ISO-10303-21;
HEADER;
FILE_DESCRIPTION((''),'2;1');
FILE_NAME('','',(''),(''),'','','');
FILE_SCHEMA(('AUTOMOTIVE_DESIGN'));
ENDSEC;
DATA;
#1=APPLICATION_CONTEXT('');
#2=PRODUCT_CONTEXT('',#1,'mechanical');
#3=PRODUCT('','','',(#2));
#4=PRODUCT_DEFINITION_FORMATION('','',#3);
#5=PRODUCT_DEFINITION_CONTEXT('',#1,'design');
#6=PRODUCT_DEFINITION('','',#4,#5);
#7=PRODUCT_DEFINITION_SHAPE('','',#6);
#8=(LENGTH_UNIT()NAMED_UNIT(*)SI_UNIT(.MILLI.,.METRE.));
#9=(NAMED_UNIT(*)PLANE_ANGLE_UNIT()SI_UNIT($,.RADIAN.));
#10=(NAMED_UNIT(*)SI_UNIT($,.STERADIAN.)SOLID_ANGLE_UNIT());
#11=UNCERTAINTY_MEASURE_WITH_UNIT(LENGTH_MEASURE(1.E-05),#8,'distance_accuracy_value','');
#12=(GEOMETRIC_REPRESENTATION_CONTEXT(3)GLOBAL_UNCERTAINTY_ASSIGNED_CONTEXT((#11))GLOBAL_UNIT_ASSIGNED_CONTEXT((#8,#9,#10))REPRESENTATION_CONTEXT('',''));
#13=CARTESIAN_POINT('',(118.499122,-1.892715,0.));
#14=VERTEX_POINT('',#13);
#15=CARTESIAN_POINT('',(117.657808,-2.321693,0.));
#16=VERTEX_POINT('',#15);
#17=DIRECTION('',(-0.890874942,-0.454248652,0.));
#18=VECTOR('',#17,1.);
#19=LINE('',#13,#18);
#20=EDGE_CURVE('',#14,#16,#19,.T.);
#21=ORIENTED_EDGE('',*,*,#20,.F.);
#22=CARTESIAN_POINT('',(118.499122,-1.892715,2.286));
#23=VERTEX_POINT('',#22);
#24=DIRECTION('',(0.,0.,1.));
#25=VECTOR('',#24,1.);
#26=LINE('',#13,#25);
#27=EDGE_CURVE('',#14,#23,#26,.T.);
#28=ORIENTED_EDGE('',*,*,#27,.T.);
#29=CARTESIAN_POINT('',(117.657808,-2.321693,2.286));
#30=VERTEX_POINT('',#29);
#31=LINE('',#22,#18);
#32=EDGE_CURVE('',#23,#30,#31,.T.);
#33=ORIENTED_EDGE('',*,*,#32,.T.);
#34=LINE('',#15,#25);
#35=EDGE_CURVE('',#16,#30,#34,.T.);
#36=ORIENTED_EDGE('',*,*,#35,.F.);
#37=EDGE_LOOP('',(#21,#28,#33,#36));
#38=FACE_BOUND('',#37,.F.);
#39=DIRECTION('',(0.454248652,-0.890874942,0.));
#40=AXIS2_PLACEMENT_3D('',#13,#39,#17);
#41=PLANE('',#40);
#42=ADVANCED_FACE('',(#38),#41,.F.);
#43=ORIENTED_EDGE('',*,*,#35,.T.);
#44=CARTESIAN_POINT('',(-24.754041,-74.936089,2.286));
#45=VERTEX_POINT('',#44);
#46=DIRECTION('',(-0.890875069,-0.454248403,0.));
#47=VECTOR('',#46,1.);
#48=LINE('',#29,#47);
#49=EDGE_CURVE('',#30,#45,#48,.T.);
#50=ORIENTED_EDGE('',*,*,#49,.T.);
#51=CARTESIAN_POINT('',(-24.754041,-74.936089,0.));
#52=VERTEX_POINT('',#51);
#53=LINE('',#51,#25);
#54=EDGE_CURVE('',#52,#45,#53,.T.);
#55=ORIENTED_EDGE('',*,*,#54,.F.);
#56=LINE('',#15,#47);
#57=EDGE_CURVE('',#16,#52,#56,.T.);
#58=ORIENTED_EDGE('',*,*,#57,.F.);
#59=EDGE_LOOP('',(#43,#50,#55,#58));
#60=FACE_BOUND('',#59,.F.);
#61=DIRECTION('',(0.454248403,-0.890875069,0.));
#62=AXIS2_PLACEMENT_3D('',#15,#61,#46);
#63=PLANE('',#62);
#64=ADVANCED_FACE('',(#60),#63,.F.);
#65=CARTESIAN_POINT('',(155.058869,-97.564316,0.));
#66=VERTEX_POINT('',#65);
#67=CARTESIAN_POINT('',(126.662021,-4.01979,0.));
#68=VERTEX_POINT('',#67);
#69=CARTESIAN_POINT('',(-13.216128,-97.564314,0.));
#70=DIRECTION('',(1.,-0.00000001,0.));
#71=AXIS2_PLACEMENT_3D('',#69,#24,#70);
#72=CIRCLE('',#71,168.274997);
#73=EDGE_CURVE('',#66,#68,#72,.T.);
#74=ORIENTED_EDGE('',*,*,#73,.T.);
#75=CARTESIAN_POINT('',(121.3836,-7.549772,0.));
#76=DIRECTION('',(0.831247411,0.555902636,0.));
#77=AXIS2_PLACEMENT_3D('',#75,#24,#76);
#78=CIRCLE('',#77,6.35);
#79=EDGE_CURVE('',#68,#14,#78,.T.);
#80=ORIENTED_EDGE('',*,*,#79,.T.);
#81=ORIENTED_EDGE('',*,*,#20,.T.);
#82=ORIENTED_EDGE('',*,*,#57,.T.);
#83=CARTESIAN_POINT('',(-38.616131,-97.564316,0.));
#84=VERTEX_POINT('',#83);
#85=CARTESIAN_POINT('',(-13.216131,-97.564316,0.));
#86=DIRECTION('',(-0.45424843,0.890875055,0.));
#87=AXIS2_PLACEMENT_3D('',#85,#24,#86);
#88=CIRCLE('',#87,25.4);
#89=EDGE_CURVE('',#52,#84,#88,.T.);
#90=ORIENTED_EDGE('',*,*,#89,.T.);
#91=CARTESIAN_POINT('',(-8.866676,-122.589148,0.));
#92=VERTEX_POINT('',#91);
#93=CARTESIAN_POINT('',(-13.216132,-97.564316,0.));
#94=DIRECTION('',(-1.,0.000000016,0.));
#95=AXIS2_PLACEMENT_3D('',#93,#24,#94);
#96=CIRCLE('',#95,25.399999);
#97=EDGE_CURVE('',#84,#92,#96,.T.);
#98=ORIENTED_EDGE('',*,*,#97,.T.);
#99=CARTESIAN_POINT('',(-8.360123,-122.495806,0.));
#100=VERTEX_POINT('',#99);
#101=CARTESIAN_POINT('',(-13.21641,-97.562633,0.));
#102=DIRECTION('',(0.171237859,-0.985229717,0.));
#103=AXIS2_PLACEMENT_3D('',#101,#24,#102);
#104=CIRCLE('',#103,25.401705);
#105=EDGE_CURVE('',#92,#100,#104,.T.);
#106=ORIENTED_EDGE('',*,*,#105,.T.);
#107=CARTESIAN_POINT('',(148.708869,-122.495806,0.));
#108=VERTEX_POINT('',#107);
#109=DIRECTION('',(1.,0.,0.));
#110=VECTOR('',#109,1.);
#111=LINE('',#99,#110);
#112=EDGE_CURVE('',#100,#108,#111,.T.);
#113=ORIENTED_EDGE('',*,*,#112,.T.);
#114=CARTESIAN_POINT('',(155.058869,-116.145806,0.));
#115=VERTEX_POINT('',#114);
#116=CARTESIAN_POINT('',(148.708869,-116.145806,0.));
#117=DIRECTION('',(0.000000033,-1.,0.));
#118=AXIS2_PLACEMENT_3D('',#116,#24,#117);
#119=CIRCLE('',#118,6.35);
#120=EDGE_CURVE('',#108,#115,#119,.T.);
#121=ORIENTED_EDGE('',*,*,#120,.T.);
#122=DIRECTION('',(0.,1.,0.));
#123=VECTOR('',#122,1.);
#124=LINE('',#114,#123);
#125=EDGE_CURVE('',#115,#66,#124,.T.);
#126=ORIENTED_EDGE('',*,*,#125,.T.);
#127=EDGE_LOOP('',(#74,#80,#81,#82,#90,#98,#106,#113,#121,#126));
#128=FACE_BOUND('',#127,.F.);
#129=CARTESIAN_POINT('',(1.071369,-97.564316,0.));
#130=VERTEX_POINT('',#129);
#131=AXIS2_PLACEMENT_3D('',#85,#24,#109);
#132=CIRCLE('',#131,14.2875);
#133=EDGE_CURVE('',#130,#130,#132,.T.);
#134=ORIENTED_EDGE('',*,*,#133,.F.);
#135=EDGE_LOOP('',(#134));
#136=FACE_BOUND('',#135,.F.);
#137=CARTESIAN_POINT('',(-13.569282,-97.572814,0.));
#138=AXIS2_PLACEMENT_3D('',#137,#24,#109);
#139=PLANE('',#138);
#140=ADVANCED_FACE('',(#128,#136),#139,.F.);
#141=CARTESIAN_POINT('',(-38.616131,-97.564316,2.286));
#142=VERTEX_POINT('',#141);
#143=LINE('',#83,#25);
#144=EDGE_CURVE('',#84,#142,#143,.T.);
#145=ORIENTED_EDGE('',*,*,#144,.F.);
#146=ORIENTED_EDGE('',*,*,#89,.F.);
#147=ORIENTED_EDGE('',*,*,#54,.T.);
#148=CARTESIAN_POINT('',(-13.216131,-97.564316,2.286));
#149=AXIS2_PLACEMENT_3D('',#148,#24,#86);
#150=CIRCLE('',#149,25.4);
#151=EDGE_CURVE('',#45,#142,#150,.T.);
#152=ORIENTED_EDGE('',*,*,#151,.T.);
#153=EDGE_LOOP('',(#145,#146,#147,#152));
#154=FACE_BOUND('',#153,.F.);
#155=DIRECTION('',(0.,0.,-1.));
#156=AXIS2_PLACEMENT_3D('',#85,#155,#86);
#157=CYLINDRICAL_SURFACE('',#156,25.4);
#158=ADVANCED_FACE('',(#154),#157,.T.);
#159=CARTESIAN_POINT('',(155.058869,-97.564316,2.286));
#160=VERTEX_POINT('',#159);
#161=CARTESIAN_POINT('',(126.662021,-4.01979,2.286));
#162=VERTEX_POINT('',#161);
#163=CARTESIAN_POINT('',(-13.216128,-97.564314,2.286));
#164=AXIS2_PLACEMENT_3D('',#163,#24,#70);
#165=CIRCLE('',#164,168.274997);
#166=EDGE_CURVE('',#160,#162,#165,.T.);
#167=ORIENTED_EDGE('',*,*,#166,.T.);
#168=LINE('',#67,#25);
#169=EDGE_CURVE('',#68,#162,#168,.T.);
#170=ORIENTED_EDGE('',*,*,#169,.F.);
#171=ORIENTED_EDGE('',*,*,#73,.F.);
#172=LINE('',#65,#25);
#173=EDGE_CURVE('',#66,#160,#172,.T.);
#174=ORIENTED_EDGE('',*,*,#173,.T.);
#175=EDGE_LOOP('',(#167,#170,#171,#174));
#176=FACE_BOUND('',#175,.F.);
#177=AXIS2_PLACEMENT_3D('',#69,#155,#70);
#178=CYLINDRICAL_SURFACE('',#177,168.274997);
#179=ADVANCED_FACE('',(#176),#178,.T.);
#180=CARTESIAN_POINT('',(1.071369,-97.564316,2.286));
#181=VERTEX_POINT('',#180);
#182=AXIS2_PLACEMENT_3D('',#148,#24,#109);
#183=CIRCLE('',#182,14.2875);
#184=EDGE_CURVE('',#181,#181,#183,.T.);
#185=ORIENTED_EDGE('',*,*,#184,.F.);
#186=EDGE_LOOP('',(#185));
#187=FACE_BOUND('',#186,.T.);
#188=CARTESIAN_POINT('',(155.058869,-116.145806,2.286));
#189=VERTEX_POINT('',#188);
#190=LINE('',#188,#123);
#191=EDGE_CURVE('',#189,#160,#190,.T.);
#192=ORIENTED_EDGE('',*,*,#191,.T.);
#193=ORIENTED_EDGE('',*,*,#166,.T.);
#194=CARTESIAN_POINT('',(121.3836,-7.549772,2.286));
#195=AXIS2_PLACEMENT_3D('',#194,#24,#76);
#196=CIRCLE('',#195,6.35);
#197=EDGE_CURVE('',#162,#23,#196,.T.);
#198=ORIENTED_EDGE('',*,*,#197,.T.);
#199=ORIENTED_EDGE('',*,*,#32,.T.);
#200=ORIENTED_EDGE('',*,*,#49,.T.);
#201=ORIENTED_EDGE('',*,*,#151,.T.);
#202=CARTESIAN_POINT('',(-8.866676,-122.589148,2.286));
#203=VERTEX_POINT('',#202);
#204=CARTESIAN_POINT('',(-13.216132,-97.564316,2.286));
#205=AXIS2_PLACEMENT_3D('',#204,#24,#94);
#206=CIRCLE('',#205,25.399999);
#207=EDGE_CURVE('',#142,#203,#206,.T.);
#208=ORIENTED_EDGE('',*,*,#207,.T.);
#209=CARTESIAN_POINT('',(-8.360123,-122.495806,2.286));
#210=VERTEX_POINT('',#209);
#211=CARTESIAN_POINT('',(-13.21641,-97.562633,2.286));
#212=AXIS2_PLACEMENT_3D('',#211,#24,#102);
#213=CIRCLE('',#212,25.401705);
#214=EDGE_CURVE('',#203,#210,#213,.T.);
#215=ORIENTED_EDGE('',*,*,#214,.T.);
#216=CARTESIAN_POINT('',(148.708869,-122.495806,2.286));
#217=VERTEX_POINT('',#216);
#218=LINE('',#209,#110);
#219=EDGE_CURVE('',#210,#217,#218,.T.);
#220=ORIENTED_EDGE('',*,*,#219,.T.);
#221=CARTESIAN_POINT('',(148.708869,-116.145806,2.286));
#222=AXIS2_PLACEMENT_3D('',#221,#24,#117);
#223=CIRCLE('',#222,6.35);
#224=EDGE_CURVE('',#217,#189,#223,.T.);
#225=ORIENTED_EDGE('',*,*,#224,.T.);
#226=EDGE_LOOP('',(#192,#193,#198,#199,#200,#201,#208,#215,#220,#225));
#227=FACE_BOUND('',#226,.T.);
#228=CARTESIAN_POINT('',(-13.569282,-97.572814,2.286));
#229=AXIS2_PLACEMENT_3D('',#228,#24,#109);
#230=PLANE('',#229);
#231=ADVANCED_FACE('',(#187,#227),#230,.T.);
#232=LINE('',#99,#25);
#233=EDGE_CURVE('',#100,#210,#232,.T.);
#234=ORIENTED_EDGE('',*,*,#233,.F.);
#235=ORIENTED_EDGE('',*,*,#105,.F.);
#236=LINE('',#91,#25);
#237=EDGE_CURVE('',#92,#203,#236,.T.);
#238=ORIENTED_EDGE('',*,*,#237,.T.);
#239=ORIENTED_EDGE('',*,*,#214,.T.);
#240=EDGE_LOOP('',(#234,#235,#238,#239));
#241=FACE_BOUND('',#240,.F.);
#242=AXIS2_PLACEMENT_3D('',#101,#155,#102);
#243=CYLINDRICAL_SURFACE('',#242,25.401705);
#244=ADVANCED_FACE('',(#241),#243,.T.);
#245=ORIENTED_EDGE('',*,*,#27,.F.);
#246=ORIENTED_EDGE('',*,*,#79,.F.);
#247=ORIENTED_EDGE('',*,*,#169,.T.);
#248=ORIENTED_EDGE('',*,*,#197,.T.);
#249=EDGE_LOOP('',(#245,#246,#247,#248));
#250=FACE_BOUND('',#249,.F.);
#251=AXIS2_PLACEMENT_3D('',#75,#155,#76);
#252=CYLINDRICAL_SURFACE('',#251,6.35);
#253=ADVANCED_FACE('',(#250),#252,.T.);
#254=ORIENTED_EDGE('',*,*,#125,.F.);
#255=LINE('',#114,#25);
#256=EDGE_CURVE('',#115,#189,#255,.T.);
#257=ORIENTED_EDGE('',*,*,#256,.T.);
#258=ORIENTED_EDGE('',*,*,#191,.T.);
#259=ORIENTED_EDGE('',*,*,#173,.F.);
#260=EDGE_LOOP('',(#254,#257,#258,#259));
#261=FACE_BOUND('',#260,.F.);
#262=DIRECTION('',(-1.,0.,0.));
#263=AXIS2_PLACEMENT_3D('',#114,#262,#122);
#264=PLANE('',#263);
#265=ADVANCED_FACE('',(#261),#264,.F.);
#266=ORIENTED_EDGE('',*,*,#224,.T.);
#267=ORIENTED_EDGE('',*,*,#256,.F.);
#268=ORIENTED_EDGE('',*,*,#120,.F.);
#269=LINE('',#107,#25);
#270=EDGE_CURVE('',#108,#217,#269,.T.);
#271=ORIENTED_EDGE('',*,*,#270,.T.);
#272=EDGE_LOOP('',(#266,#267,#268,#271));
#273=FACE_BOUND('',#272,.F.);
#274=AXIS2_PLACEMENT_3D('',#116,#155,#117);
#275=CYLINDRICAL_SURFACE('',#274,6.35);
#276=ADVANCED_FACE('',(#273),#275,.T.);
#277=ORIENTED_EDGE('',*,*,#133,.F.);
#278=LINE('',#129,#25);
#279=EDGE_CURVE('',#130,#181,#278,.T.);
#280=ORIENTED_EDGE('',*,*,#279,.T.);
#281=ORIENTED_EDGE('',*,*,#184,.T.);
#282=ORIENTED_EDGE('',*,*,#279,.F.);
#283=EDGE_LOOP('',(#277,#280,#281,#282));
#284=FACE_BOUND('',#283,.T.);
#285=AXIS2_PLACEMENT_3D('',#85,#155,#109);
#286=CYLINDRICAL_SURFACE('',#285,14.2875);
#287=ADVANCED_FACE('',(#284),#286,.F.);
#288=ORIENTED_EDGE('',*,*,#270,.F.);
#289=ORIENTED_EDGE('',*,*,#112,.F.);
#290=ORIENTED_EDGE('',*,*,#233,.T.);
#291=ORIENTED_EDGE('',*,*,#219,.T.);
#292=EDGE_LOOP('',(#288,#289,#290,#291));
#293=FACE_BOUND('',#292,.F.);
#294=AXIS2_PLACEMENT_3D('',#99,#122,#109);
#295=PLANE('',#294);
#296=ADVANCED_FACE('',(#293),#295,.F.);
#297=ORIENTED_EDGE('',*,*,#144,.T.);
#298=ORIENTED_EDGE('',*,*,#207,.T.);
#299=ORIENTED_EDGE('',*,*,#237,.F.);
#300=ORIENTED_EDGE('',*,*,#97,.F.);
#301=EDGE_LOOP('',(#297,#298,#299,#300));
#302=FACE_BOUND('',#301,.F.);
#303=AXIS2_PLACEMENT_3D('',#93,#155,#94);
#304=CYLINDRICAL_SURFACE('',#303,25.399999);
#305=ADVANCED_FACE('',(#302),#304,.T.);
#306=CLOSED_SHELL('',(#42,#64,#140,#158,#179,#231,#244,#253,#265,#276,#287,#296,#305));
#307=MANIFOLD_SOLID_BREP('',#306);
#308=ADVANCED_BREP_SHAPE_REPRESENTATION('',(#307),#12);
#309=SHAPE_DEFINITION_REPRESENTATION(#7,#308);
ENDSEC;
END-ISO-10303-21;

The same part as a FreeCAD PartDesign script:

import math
import FreeCAD as App
import Part
import Sketcher
from FreeCAD import Vector
Q = App.Units.Quantity

doc = App.newDocument("Part")
params = doc.addObject("Spreadsheet::Sheet", "Params")
for row, (alias, value) in enumerate([
    ("sketch1_radius", "1 in"),
    ("sketch1_radius2", "0.25 in"),
    ("sketch1_diameter", "1.125 in"),
    ("sketch1_radius3", "6.6249999 in"),
    ("pad1_length", "0.09 in"),
], start=1):
    params.set(f"A{row}", alias)
    params.set(f"B{row}", "=" + value)
    params.setAlias(f"B{row}", alias)

body = doc.addObject("PartDesign::Body", "Body")

# Sketch on XY plane
sketch1 = body.newObject("Sketcher::SketchObject", "Sketch")
sketch1.AttachmentSupport = (doc.getObject("XY_Plane"), [""])
sketch1.MapMode = "FlatFace"
sketch1.addGeometry([
    Part.ArcOfCircle(Part.Circle(Vector(-13.2, -97.6, 0), Vector(0, 0, 1), 25.4), math.radians(-80.14), math.radians(-78.98)),  # 0
    Part.LineSegment(Vector(-8.4, -122.5, 0), Vector(148.7, -122.5, 0)),  # 1
    Part.ArcOfCircle(Part.Circle(Vector(148.7, -116.1, 0), Vector(0, 0, 1), 6.4), math.radians(-90), math.radians(0)),  # 2
    Part.LineSegment(Vector(155.1, -116.1, 0), Vector(155.1, -97.6, 0)),  # 3
    Part.ArcOfCircle(Part.Circle(Vector(-13.2, -97.6, 0), Vector(0, 0, 1), 168.3), math.radians(0), math.radians(34)),  # 4
    Part.ArcOfCircle(Part.Circle(Vector(121.4, -7.5, 0), Vector(0, 0, 1), 6.4), math.radians(34), math.radians(117)),  # 5
    Part.LineSegment(Vector(118.5, -1.9, 0), Vector(117.7, -2.3, 0)),  # 6
    Part.LineSegment(Vector(117.7, -2.3, 0), Vector(-24.8, -74.9, 0)),  # 7
    Part.ArcOfCircle(Part.Circle(Vector(-13.2, -97.6, 0), Vector(0, 0, 1), 25.4), math.radians(117), math.radians(180)),  # 8
    Part.ArcOfCircle(Part.Circle(Vector(-13.2, -97.6, 0), Vector(0, 0, 1), 25.4), math.radians(180), math.radians(280)),  # 9
    Part.Circle(Vector(-13.2, -97.6, 0), Vector(0, 0, 1), 14.3),  # 10
], False)
sketch1.addConstraint([
    Sketcher.Constraint("Coincident", 0, 2, 1, 1),
    Sketcher.Constraint("Tangent", 1, 2, 2, 1),
    Sketcher.Constraint("Tangent", 2, 2, 3, 1),
    Sketcher.Constraint("Tangent", 3, 2, 4, 1),
    Sketcher.Constraint("Tangent", 4, 2, 5, 1),
    Sketcher.Constraint("Tangent", 5, 2, 6, 1),
    Sketcher.Constraint("Coincident", 6, 2, 7, 1),
    Sketcher.Constraint("Tangent", 7, 2, 8, 1),
    Sketcher.Constraint("Tangent", 8, 2, 9, 1),
    Sketcher.Constraint("Tangent", 9, 2, 0, 1),
    Sketcher.Constraint("Horizontal", 1),
    Sketcher.Constraint("Vertical", 3),
    Sketcher.Constraint("Coincident", 8, 3, 4, 3),
    Sketcher.Constraint("Coincident", 10, 3, 4, 3),
    Sketcher.Constraint("Equal", 2, 5),
    Sketcher.Constraint("Equal", 8, 9),
    Sketcher.Constraint("Parallel", 6, 7),
    Sketcher.Constraint("Horizontal", 3, 2, 8, 2),
    Sketcher.Constraint("Radius", 8, Q("1 in")),
    Sketcher.Constraint("Radius", 2, Q("0.25 in")),
    Sketcher.Constraint("Diameter", 10, Q("1.125 in")),
    Sketcher.Constraint("Radius", 4, Q("6.6249999 in")),
    Sketcher.Constraint("Radius", 0, 25.401705),
    Sketcher.Constraint("DistanceX", 1, 1, 1, 2, 157.068992),
    Sketcher.Constraint("DistanceX", -1, 1, 5, 3, 121.3836),
    Sketcher.Constraint("DistanceY", 3, 2, 5, 2, 95.671601),
    Sketcher.Constraint("Distance", 6, 0.944368),
    Sketcher.Constraint("DistanceY", 5, 3, -1, 1, 7.549772),
    Sketcher.Constraint("DistanceY", 9, 2, -1, 1, 122.589148),
])
sketch1.setExpression("Constraints[18]", "Params.sketch1_radius")
sketch1.setExpression("Constraints[19]", "Params.sketch1_radius2")
sketch1.setExpression("Constraints[20]", "Params.sketch1_diameter")
sketch1.setExpression("Constraints[21]", "Params.sketch1_radius3")
pad1 = body.newObject("PartDesign::Pad", "Pad")
pad1.Profile = sketch1
pad1.setExpression("Length", "Params.pad1_length")

doc.recompute()
